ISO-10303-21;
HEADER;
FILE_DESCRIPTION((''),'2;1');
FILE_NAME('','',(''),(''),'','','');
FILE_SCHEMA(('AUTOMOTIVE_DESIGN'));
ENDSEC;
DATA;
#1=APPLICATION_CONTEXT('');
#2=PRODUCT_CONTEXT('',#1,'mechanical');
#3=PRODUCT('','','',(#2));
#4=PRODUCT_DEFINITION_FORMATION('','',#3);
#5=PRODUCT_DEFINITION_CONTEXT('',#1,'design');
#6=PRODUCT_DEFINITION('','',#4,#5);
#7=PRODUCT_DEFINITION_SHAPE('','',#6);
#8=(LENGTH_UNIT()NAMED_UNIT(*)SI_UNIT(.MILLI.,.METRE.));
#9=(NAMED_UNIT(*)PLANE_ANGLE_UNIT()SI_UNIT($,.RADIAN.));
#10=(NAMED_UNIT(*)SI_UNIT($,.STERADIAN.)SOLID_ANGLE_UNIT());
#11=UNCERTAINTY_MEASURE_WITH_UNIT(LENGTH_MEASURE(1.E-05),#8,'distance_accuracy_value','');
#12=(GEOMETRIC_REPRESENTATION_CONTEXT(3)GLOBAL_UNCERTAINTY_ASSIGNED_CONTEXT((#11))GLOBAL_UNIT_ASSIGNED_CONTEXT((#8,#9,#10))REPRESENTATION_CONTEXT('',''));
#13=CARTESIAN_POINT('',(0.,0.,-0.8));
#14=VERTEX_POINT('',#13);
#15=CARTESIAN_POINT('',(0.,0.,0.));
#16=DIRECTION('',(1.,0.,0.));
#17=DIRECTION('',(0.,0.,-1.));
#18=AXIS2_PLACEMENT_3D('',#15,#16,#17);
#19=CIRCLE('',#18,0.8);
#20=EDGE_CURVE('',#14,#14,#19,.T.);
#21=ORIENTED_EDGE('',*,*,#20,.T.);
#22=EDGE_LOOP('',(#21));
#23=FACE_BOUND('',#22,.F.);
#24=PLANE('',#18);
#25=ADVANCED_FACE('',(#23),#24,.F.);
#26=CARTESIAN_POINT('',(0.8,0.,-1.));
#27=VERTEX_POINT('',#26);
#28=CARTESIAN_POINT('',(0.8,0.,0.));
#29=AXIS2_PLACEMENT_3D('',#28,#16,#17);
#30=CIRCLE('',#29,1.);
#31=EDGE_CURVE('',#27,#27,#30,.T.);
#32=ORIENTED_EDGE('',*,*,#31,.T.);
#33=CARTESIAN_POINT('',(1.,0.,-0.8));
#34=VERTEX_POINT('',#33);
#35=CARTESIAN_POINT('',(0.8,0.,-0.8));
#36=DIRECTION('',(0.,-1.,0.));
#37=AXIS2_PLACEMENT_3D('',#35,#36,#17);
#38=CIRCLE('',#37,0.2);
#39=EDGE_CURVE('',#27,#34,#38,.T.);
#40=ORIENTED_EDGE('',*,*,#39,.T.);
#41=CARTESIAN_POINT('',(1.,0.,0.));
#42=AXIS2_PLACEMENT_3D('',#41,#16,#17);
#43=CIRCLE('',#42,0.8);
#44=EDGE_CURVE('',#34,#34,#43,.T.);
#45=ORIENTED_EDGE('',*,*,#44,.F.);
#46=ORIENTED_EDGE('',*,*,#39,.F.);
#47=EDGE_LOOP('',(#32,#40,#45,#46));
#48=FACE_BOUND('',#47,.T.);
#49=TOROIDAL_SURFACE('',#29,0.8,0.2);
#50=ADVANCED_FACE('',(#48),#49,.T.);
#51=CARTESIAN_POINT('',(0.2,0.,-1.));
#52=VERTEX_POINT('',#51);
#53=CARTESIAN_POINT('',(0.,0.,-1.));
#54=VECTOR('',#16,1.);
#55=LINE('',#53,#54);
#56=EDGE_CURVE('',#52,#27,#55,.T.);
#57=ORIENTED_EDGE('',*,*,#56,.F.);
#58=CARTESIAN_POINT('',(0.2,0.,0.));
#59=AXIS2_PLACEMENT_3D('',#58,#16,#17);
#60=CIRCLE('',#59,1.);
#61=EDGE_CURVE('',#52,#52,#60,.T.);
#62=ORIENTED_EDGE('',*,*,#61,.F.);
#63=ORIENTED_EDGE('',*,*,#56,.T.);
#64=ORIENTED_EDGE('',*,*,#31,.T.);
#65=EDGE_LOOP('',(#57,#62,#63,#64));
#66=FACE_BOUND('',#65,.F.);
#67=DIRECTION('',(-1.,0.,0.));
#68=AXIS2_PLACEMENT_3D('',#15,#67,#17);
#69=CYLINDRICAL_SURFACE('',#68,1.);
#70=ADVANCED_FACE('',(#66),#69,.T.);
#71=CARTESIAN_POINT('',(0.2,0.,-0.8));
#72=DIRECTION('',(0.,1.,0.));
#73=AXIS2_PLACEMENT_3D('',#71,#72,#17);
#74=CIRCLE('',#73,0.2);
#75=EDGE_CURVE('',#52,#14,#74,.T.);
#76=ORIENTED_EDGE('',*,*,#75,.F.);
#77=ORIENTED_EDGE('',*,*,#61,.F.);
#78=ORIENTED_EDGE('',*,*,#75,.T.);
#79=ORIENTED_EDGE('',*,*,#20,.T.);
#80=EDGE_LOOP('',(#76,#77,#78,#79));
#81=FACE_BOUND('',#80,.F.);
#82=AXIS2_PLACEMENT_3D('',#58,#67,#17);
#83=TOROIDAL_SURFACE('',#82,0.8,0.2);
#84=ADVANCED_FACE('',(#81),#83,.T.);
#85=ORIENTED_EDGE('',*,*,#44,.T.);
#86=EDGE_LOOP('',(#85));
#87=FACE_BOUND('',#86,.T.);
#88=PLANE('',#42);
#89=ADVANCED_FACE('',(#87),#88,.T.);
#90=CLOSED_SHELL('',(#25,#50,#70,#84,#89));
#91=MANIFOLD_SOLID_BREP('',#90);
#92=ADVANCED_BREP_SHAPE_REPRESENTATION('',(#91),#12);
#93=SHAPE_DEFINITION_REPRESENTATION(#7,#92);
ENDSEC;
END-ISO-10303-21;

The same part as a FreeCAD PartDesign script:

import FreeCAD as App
import Part
import Sketcher
Q = App.Units.Quantity


def edges_at(feature, points):
    """Names of the edges that pass closest to the given points."""
    edges = feature.Shape.Edges
    near = lambda p: min(range(len(edges)), key=lambda i: edges[i].distToShape(Part.Vertex(*p))[0])
    return sorted({f"Edge{near(p) + 1}" for p in points})

doc = App.newDocument("Part")
body = doc.addObject("PartDesign::Body", "Body")

sketch1 = body.newObject("Sketcher::SketchObject", "Sketch")
sketch1.AttachmentSupport = (doc.getObject("XY_Plane"), [""])
sketch1.MapMode = "FlatFace"
sketch1.addGeometry(Part.Circle(App.Vector(0, 0, 0), App.Vector(0, 0, 1), 1), False)
sketch1.addConstraint([
    Sketcher.Constraint("Coincident", 0, 3, -1, 1),
    Sketcher.Constraint("Diameter", 0, Q("2 mm")),
])
pad1 = body.newObject("PartDesign::Pad", "Pad")
pad1.Profile = sketch1
pad1.Length = 1
body2 = doc.addObject("PartDesign::Body", "Body001")
doc.recompute()

body.Placement = App.Placement(App.Vector(0, 0, 0), App.Rotation(App.Vector(0, 1, 0), 90))
boolean = body2.newObject("PartDesign::Boolean", "Boolean")
boolean.Type = "Fuse"
boolean.addObjects([body])
doc.recompute()

fillet = body2.newObject("PartDesign::Fillet", "Fillet")
fillet.Base = (boolean, edges_at(boolean, [(1, 0, 1), (0, 0, 1)]))
fillet.Radius = 0.2

doc.recompute()
